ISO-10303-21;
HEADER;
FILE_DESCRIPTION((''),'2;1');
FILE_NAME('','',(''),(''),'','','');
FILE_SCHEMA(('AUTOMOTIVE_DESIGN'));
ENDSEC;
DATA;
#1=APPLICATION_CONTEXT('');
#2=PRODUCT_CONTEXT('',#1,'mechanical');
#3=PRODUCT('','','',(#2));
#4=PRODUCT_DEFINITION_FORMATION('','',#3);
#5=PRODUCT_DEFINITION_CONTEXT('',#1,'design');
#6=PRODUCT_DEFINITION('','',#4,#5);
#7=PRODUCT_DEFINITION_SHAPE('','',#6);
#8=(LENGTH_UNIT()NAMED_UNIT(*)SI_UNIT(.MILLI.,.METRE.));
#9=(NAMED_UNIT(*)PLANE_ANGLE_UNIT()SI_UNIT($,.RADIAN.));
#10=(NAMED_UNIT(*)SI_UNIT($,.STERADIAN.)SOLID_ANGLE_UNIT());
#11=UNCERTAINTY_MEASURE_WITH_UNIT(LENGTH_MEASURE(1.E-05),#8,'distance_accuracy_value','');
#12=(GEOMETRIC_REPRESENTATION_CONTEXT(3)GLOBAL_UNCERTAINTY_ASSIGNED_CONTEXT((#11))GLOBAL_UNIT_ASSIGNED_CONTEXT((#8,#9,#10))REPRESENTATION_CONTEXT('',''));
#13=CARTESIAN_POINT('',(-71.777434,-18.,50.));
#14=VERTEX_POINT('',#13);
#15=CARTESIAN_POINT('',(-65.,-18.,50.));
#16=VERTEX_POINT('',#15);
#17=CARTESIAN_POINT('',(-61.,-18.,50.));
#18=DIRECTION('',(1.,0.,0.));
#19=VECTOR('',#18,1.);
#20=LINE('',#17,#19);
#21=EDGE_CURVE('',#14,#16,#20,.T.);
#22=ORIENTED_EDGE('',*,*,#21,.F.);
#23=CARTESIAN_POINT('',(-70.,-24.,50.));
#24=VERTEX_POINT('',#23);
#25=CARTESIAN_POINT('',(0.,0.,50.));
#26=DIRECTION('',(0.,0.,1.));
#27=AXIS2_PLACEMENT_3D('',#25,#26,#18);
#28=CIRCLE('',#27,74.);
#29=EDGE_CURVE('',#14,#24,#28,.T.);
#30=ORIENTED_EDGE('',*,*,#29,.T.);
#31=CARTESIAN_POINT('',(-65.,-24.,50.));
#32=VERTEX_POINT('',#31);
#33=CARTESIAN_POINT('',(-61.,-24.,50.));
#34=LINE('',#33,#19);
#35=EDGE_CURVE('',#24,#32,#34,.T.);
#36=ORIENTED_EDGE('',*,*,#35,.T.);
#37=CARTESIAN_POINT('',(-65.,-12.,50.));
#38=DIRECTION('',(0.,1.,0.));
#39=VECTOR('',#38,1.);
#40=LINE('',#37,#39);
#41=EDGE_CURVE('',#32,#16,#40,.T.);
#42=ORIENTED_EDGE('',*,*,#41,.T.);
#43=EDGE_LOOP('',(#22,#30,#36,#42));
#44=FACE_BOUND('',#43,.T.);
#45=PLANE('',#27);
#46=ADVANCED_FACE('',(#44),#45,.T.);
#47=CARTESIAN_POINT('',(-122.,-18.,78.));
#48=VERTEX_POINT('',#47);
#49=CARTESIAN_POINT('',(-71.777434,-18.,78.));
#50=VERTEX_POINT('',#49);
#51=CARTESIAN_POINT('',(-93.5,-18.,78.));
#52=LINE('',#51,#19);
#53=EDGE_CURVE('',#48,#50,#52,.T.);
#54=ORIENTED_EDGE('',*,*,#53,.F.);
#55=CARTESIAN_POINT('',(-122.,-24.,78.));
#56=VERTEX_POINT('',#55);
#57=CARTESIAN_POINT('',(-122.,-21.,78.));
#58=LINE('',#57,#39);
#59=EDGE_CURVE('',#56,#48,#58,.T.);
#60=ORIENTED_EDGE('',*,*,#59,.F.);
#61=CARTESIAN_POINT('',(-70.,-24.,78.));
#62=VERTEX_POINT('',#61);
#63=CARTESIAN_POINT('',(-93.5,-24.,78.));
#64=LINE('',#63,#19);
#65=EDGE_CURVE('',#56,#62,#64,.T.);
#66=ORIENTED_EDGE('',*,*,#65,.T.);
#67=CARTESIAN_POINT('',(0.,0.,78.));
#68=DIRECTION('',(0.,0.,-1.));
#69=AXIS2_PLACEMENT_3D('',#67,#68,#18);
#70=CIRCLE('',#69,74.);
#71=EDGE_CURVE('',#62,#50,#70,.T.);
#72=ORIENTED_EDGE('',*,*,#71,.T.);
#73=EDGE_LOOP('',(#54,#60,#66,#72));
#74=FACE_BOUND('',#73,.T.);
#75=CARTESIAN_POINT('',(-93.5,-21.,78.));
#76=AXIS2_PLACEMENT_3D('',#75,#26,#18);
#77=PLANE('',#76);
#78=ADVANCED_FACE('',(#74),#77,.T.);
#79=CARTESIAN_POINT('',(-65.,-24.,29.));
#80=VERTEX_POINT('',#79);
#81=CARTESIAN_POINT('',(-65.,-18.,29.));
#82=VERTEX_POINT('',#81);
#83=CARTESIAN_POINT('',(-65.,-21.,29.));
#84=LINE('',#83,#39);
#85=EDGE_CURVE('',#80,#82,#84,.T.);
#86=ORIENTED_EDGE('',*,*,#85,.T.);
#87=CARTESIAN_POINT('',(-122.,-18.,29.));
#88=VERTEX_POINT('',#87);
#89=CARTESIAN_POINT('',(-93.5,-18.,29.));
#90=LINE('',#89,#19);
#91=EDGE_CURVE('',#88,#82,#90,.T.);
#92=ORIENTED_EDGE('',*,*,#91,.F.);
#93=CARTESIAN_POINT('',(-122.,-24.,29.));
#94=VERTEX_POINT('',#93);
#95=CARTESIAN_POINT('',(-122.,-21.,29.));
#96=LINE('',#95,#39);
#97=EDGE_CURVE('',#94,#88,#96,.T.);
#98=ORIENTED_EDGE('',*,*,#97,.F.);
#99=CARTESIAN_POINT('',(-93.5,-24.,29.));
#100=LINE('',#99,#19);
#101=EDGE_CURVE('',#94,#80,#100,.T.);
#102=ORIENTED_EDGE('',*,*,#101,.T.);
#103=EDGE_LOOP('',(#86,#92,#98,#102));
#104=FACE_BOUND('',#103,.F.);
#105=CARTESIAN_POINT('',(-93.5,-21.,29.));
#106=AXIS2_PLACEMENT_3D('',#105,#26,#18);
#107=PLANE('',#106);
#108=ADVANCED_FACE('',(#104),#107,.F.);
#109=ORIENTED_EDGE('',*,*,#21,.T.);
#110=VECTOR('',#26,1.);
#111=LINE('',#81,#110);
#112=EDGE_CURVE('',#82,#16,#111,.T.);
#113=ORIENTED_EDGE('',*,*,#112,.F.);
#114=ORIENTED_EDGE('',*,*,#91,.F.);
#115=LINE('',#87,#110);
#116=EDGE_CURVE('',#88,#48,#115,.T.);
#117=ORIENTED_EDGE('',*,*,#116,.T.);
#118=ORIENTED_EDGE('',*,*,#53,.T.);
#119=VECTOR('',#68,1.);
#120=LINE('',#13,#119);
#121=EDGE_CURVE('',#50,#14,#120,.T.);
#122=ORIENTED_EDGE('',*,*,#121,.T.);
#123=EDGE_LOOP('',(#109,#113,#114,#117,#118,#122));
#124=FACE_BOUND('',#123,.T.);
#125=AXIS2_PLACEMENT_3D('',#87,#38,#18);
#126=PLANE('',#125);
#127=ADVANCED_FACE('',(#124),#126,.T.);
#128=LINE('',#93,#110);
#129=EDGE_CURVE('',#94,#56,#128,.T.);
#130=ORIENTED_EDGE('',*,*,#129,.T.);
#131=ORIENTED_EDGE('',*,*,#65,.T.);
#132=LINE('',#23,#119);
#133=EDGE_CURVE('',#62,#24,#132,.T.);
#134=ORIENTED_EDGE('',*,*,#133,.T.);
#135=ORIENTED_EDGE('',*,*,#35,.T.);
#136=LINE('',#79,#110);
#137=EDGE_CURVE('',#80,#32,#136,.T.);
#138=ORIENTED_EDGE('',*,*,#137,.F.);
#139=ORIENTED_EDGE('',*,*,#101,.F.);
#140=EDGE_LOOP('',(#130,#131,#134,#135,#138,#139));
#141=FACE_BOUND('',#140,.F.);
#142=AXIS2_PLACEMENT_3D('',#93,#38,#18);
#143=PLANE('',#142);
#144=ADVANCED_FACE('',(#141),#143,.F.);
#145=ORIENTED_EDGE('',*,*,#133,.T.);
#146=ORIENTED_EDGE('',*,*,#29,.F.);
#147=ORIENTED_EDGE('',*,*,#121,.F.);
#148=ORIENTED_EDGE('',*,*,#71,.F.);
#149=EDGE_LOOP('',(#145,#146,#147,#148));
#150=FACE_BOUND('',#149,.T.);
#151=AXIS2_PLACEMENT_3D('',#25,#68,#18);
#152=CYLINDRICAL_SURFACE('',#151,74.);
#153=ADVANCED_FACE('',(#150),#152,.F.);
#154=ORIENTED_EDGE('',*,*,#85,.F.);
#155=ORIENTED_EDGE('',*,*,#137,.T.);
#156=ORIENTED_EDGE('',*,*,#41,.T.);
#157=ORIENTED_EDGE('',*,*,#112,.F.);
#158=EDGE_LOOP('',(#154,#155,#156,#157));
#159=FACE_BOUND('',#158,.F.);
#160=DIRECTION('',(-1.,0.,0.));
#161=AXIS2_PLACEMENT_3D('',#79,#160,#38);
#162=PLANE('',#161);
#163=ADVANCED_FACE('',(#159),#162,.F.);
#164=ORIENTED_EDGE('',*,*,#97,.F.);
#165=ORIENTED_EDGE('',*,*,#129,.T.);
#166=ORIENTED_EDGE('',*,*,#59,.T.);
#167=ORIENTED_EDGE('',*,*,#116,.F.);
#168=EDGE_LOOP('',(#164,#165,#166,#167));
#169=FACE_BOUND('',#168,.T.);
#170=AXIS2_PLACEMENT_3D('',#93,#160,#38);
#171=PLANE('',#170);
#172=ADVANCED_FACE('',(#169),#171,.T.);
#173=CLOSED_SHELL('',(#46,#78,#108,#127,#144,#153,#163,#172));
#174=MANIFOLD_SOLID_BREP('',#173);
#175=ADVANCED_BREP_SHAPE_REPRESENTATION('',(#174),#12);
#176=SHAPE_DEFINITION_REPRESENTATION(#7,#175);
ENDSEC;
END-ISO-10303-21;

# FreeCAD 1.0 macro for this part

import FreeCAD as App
import Part
import Sketcher

V = App.Vector

doc = App.newDocument("Part")
params = doc.addObject("Spreadsheet::Sheet", "Params")
for row, (alias, value) in enumerate([
    ("sketch1_diameter", "148 mm"),
    ("pad1_length", "32 mm"),
    ("sketch2_width", "57 mm"),
    ("sketch2_height", "6 mm"),
    ("pad2_length", "49 mm"),
], start=1):
    params.set(f"A{row}", alias)
    params.set(f"B{row}", "=" + value)
    params.setAlias(f"B{row}", alias)

body = doc.addObject("PartDesign::Body", "Body")

sketch1 = body.newObject("Sketcher::SketchObject", "Sketch")
sketch1.AttachmentSupport = (doc.getObject("XY_Plane"), [""])
sketch1.MapMode = "FlatFace"
sketch1.AttachmentOffset = App.Placement(V(0, 0, 50), App.Rotation())
sketch1.addGeometry(Part.Circle(V(0, 0, 0), V(0, 0, 1), 74), False)
sketch1.addConstraint([
    Sketcher.Constraint("Coincident", 0, 3, -1, 1),
    Sketcher.Constraint("Diameter", 0, 148.0),
])
sketch1.setExpression("Constraints[1]", "Params.sketch1_diameter")
pad1 = body.newObject("PartDesign::Pad", "Pad")
pad1.Profile = sketch1
pad1.setExpression("Length", "Params.pad1_length")
body2 = doc.addObject("PartDesign::Body", "Body001")

sketch2 = body2.newObject("Sketcher::SketchObject", "Sketch001")
sketch2.AttachmentSupport = (doc.getObject("XY_Plane001"), [""])
sketch2.MapMode = "FlatFace"
sketch2.AttachmentOffset = App.Placement(V(0, 0, 29), App.Rotation())
sketch2.addGeometry([
    Part.LineSegment(V(-122, -18, 0), V(-122, -24, 0)),
    Part.LineSegment(V(-122, -24, 0), V(-65, -24, 0)),
    Part.LineSegment(V(-65, -24, 0), V(-65, -18, 0)),
    Part.LineSegment(V(-65, -18, 0), V(-122, -18, 0)),
], False)
sketch2.addConstraint([
    Sketcher.Constraint("Coincident", 0, 2, 1, 1),
    Sketcher.Constraint("Coincident", 1, 2, 2, 1),
    Sketcher.Constraint("Coincident", 2, 2, 3, 1),
    Sketcher.Constraint("Coincident", 3, 2, 0, 1),
    Sketcher.Constraint("Vertical", 0),
    Sketcher.Constraint("Horizontal", 1),
    Sketcher.Constraint("Vertical", 2),
    Sketcher.Constraint("Horizontal", 3),
    Sketcher.Constraint("DistanceX", 1, 1, 1, 2, 57.0),
    Sketcher.Constraint("DistanceY", 0, 2, 0, 1, 6.0),
    Sketcher.Constraint("DistanceX", 0, 2, -1, 1, 122.0),
    Sketcher.Constraint("DistanceY", 0, 2, -1, 1, 24.0),
])
sketch2.setExpression("Constraints[8]", "Params.sketch2_width")
sketch2.setExpression("Constraints[9]", "Params.sketch2_height")
pad2 = body2.newObject("PartDesign::Pad", "Pad001")
pad2.Profile = sketch2
pad2.setExpression("Length", "Params.pad2_length")
doc.recompute()

boolean = body2.newObject("PartDesign::Boolean", "Boolean")
boolean.Type = "Cut"
boolean.addObjects([body])

doc.recompute()
